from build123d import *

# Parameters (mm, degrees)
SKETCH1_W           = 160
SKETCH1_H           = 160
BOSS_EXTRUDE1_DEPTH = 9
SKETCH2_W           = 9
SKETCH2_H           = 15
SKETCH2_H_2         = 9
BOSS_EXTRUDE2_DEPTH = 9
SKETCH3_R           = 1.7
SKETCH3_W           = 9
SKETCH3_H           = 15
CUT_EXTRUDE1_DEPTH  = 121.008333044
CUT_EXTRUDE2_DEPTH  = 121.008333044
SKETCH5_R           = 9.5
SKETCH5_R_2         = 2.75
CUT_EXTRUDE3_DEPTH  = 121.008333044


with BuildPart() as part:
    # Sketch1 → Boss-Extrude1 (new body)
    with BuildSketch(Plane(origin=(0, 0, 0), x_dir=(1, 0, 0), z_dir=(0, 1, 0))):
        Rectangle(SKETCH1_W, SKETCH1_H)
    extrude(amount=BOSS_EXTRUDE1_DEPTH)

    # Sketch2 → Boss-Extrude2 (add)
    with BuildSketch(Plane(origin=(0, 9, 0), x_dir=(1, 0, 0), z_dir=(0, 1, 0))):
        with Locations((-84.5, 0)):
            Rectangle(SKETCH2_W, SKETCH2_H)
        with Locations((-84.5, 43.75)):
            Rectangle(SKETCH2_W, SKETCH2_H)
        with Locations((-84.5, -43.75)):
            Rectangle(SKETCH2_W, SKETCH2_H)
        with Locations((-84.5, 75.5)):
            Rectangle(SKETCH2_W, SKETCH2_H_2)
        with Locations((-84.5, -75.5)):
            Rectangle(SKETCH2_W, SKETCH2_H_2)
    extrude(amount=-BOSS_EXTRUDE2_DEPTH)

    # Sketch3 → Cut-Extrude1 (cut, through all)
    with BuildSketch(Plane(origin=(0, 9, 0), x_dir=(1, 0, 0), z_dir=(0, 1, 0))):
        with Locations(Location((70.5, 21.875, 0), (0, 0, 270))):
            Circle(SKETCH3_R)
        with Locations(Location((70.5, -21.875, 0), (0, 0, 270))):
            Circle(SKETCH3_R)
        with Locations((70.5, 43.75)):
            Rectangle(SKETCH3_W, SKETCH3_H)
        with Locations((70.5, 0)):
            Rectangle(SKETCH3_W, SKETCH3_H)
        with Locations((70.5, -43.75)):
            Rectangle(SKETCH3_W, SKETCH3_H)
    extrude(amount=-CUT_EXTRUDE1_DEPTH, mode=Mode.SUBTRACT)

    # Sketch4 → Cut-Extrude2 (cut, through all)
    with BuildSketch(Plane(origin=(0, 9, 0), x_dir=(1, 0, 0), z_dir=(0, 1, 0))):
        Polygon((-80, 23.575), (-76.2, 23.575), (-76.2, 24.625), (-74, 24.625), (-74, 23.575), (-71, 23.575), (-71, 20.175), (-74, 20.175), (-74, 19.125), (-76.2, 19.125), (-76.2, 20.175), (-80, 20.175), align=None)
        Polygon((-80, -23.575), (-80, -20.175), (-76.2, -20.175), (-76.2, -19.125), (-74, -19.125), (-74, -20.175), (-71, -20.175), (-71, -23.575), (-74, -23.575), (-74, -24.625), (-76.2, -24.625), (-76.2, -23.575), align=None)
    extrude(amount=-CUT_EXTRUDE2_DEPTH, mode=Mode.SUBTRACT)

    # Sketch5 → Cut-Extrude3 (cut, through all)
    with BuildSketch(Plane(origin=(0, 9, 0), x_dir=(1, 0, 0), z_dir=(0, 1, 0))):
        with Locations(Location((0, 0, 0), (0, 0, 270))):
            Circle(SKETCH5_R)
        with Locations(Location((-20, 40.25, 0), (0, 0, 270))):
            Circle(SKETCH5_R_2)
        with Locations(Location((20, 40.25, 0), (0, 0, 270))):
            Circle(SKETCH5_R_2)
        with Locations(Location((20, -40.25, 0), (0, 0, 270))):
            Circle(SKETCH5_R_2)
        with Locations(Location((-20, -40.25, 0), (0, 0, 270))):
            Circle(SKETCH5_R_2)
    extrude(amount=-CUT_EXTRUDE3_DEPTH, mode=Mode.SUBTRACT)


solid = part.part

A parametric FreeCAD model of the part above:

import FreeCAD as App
import Part
import Sketcher
from FreeCAD import Vector
Q = App.Units.Quantity

doc = App.newDocument("Part")
body = doc.addObject("PartDesign::Body", "Body")

sketch1 = body.newObject("Sketcher::SketchObject", "Sketch")
sketch1.AttachmentSupport = (doc.getObject("XZ_Plane"), [""])
sketch1.MapMode = "FlatFace"
sketch1.addGeometry([
    Part.LineSegment(Vector(-80, -80, 0), Vector(-80, 80, 0)),
    Part.LineSegment(Vector(-80, 80, 0), Vector(80, 80, 0)),
    Part.LineSegment(Vector(80, 80, 0), Vector(80, -80, 0)),
    Part.LineSegment(Vector(80, -80, 0), Vector(-80, -80, 0)),
], False)
sketch1.addConstraint([
    Sketcher.Constraint("Coincident", 0, 2, 1, 1),
    Sketcher.Constraint("Coincident", 1, 2, 2, 1),
    Sketcher.Constraint("Coincident", 2, 2, 3, 1),
    Sketcher.Constraint("Coincident", 3, 2, 0, 1),
    Sketcher.Constraint("Vertical", 0),
    Sketcher.Constraint("Horizontal", 1),
    Sketcher.Constraint("Vertical", 2),
    Sketcher.Constraint("Horizontal", 3),
    Sketcher.Constraint("Symmetric", 0, 2, 2, 2, -1, 1),
    Sketcher.Constraint("Equal", 3, 0),
    Sketcher.Constraint("DistanceX", 1, 1, 1, 2, Q("160 mm")),
])
pad1 = body.newObject("PartDesign::Pad", "Pad")
pad1.Profile = sketch1
pad1.Length = 9
pad1.Reversed = True

sketch2 = body.newObject("Sketcher::SketchObject", "Sketch001")
sketch2.AttachmentSupport = (doc.getObject("XZ_Plane"), [""])
sketch2.MapMode = "FlatFace"
sketch2.AttachmentOffset = App.Placement(Vector(0, 0, -9), App.Rotation())
sketch2.addGeometry([
    Part.LineSegment(Vector(-89, -8, 0), Vector(-89, 8, 0)),
    Part.LineSegment(Vector(-89, 8, 0), Vector(-80, 8, 0)),
    Part.LineSegment(Vector(-80, 8, 0), Vector(-80, -8, 0)),
    Part.LineSegment(Vector(-80, -8, 0), Vector(-89, -8, 0)),
    Part.LineSegment(Vector(-89, -51, 0), Vector(-89, -36, 0)),
    Part.LineSegment(Vector(-89, -36, 0), Vector(-80, -36, 0)),
    Part.LineSegment(Vector(-80, -36, 0), Vector(-80, -51, 0)),
    Part.LineSegment(Vector(-80, -51, 0), Vector(-89, -51, 0)),
    Part.LineSegment(Vector(-89, 36, 0), Vector(-89, 51, 0)),
    Part.LineSegment(Vector(-89, 51, 0), Vector(-80, 51, 0)),
    Part.LineSegment(Vector(-80, 51, 0), Vector(-80, 36, 0)),
    Part.LineSegment(Vector(-80, 36, 0), Vector(-89, 36, 0)),
    Part.LineSegment(Vector(-89, -80, 0), Vector(-89, -71, 0)),
    Part.LineSegment(Vector(-89, -71, 0), Vector(-80, -71, 0)),
    Part.LineSegment(Vector(-80, -71, 0), Vector(-80, -80, 0)),
    Part.LineSegment(Vector(-80, -80, 0), Vector(-89, -80, 0)),
    Part.LineSegment(Vector(-89, 71, 0), Vector(-89, 80, 0)),
    Part.LineSegment(Vector(-89, 80, 0), Vector(-80, 80, 0)),
    Part.LineSegment(Vector(-80, 80, 0), Vector(-80, 71, 0)),
    Part.LineSegment(Vector(-80, 71, 0), Vector(-89, 71, 0)),
], False)
sketch2.addConstraint([
    Sketcher.Constraint("Coincident", 0, 2, 1, 1),
    Sketcher.Constraint("Coincident", 1, 2, 2, 1),
    Sketcher.Constraint("Coincident", 2, 2, 3, 1),
    Sketcher.Constraint("Coincident", 3, 2, 0, 1),
    Sketcher.Constraint("Coincident", 4, 2, 5, 1),
    Sketcher.Constraint("Coincident", 5, 2, 6, 1),
    Sketcher.Constraint("Coincident", 6, 2, 7, 1),
    Sketcher.Constraint("Coincident", 7, 2, 4, 1),
    Sketcher.Constraint("Coincident", 8, 2, 9, 1),
    Sketcher.Constraint("Coincident", 9, 2, 10, 1),
    Sketcher.Constraint("Coincident", 10, 2, 11, 1),
    Sketcher.Constraint("Coincident", 11, 2, 8, 1),
    Sketcher.Constraint("Coincident", 12, 2, 13, 1),
    Sketcher.Constraint("Coincident", 13, 2, 14, 1),
    Sketcher.Constraint("Coincident", 14, 2, 15, 1),
    Sketcher.Constraint("Coincident", 15, 2, 12, 1),
    Sketcher.Constraint("Coincident", 16, 2, 17, 1),
    Sketcher.Constraint("Coincident", 17, 2, 18, 1),
    Sketcher.Constraint("Coincident", 18, 2, 19, 1),
    Sketcher.Constraint("Coincident", 19, 2, 16, 1),
    Sketcher.Constraint("Vertical", 0),
    Sketcher.Constraint("Horizontal", 1),
    Sketcher.Constraint("Vertical", 2),
    Sketcher.Constraint("Horizontal", 3),
    Sketcher.Constraint("Vertical", 4),
    Sketcher.Constraint("Horizontal", 5),
    Sketcher.Constraint("Vertical", 6),
    Sketcher.Constraint("Horizontal", 7),
    Sketcher.Constraint("Vertical", 8),
    Sketcher.Constraint("Horizontal", 9),
    Sketcher.Constraint("Vertical", 10),
    Sketcher.Constraint("Horizontal", 11),
    Sketcher.Constraint("Vertical", 12),
    Sketcher.Constraint("Horizontal", 13),
    Sketcher.Constraint("Vertical", 14),
    Sketcher.Constraint("Horizontal", 15),
    Sketcher.Constraint("Vertical", 16),
    Sketcher.Constraint("Horizontal", 17),
    Sketcher.Constraint("Vertical", 18),
    Sketcher.Constraint("Horizontal", 19),
    Sketcher.Constraint("Symmetric", 7, 2, 8, 2, -1),
    Sketcher.Constraint("Symmetric", 5, 2, 10, 2, -1),
    Sketcher.Constraint("Symmetric", 15, 2, 16, 2, -1),
    Sketcher.Constraint("Symmetric", 13, 2, 18, 2, -1),
    Sketcher.Constraint("Vertical", 3, 2, 4, 2),
    Sketcher.Constraint("Vertical", 2, 2, 5, 2),
    Sketcher.Constraint("Vertical", 11, 2, 12, 2),
    Sketcher.Constraint("Vertical", 10, 2, 13, 2),
    Sketcher.Constraint("Equal", 2, 4),
    Sketcher.Constraint("Equal", 19, 12),
    Sketcher.Constraint("DistanceX", 1, 1, 1, 2, Q("9 mm")),
    Sketcher.Constraint("DistanceY", 0, 1, 0, 2, Q("15 mm")),
    Sketcher.Constraint("DistanceX", 0, 2, -1, 1, Q("89 mm")),
    Sketcher.Constraint("DistanceY", 12, 2, -1, 1, Q("71 mm")),
    Sketcher.Constraint("DistanceY", -1, 1, 0, 2, Q("7.5 mm")),
    Sketcher.Constraint("DistanceY", 4, 2, 8, 2, Q("87.5 mm")),
])
pad2 = body.newObject("PartDesign::Pad", "Pad001")
pad2.Profile = sketch2
pad2.Length = 9

sketch3 = body.newObject("Sketcher::SketchObject", "Sketch002")
sketch3.AttachmentSupport = (doc.getObject("XZ_Plane"), [""])
sketch3.MapMode = "FlatFace"
sketch3.AttachmentOffset = App.Placement(Vector(0, 0, -9), App.Rotation())
sketch3.addGeometry([
    Part.Circle(Vector(70.5, -21.9, 0), Vector(0, 0, 1), 1.7),
    Part.Circle(Vector(70.5, 21.9, 0), Vector(0, 0, 1), 1.7),
    Part.LineSegment(Vector(66, -51.2, 0), Vector(66, -36.2, 0)),
    Part.LineSegment(Vector(66, -36.2, 0), Vector(75, -36.2, 0)),
    Part.LineSegment(Vector(75, -36.2, 0), Vector(75, -51.2, 0)),
    Part.LineSegment(Vector(75, -51.2, 0), Vector(66, -51.2, 0)),
    Part.LineSegment(Vector(66, -7.5, 0), Vector(66, 7.5, 0)),
    Part.LineSegment(Vector(66, 7.5, 0), Vector(75, 7.5, 0)),
    Part.LineSegment(Vector(75, 7.5, 0), Vector(75, -7.5, 0)),
    Part.LineSegment(Vector(75, -7.5, 0), Vector(66, -7.5, 0)),
    Part.LineSegment(Vector(66, 36.2, 0), Vector(66, 51.2, 0)),
    Part.LineSegment(Vector(66, 51.2, 0), Vector(75, 51.2, 0)),
    Part.LineSegment(Vector(75, 51.2, 0), Vector(75, 36.2, 0)),
    Part.LineSegment(Vector(75, 36.2, 0), Vector(66, 36.2, 0)),
], False)
sketch3.addConstraint([
    Sketcher.Constraint("Coincident", 2, 2, 3, 1),
    Sketcher.Constraint("Coincident", 3, 2, 4, 1),
    Sketcher.Constraint("Coincident", 4, 2, 5, 1),
    Sketcher.Constraint("Coincident", 5, 2, 2, 1),
    Sketcher.Constraint("Coincident", 6, 2, 7, 1),
    Sketcher.Constraint("Coincident", 7, 2, 8, 1),
    Sketcher.Constraint("Coincident", 8, 2, 9, 1),
    Sketcher.Constraint("Coincident", 9, 2, 6, 1),
    Sketcher.Constraint("Coincident", 10, 2, 11, 1),
    Sketcher.Constraint("Coincident", 11, 2, 12, 1),
    Sketcher.Constraint("Coincident", 12, 2, 13, 1),
    Sketcher.Constraint("Coincident", 13, 2, 10, 1),
    Sketcher.Constraint("Vertical", 2),
    Sketcher.Constraint("Horizontal", 3),
    Sketcher.Constraint("Vertical", 4),
    Sketcher.Constraint("Horizontal", 5),
    Sketcher.Constraint("Vertical", 6),
    Sketcher.Constraint("Horizontal", 7),
    Sketcher.Constraint("Vertical", 8),
    Sketcher.Constraint("Horizontal", 9),
    Sketcher.Constraint("Vertical", 10),
    Sketcher.Constraint("Horizontal", 11),
    Sketcher.Constraint("Vertical", 12),
    Sketcher.Constraint("Horizontal", 13),
    Sketcher.Constraint("Equal", 0, 1),
    Sketcher.Constraint("Symmetric", 0, 3, 1, 3, -1),
    Sketcher.Constraint("Symmetric", 5, 2, 10, 2, -1),
    Sketcher.Constraint("Symmetric", 3, 2, 12, 2, -1),
    Sketcher.Constraint("Vertical", 5, 2, 6, 2),
    Sketcher.Constraint("Vertical", 4, 2, 7, 2),
    Sketcher.Constraint("Equal", 4, 6),
    Sketcher.Constraint("Diameter", 0, Q("3.4 mm")),
    Sketcher.Constraint("DistanceX", 3, 1, 3, 2, Q("9 mm")),
    Sketcher.Constraint("DistanceY", 2, 1, 2, 2, Q("15 mm")),
    Sketcher.Constraint("DistanceX", -1, 1, 2, 2, Q("66 mm")),
    Sketcher.Constraint("DistanceX", -1, 1, 0, 3, Q("70.5 mm")),
    Sketcher.Constraint("DistanceY", -1, 1, 6, 2, Q("7.5 mm")),
    Sketcher.Constraint("DistanceY", 2, 2, -1, 1, Q("36.25 mm")),
    Sketcher.Constraint("DistanceY", 0, 3, 1, 3, Q("43.75 mm")),
])
pocket1 = body.newObject("PartDesign::Pocket", "Pocket")
pocket1.Profile = sketch3
pocket1.Type = "ThroughAll"
pocket1.Reversed = True

sketch4 = body.newObject("Sketcher::SketchObject", "Sketch003")
sketch4.AttachmentSupport = (doc.getObject("XZ_Plane"), [""])
sketch4.MapMode = "FlatFace"
sketch4.AttachmentOffset = App.Placement(Vector(0, 0, -9), App.Rotation())
sketch4.addGeometry([
    Part.LineSegment(Vector(-76.2, -23.6, 0), Vector(-80, -23.6, 0)),
    Part.LineSegment(Vector(-80, -23.6, 0), Vector(-80, -20.2, 0)),
    Part.LineSegment(Vector(-80, -20.2, 0), Vector(-76.2, -20.2, 0)),
    Part.LineSegment(Vector(-76.2, -20.2, 0), Vector(-76.2, -19.1, 0)),
    Part.LineSegment(Vector(-76.2, -19.1, 0), Vector(-74, -19.1, 0)),
    Part.LineSegment(Vector(-74, -19.1, 0), Vector(-74, -20.2, 0)),
    Part.LineSegment(Vector(-74, -20.2, 0), Vector(-71, -20.2, 0)),
    Part.LineSegment(Vector(-71, -20.2, 0), Vector(-71, -23.6, 0)),
    Part.LineSegment(Vector(-71, -23.6, 0), Vector(-74, -23.6, 0)),
    Part.LineSegment(Vector(-74, -23.6, 0), Vector(-74, -24.6, 0)),
    Part.LineSegment(Vector(-74, -24.6, 0), Vector(-76.2, -24.6, 0)),
    Part.LineSegment(Vector(-76.2, -24.6, 0), Vector(-76.2, -23.6, 0)),
    Part.LineSegment(Vector(-80, 20.2, 0), Vector(-80, 23.6, 0)),
    Part.LineSegment(Vector(-80, 23.6, 0), Vector(-76.2, 23.6, 0)),
    Part.LineSegment(Vector(-76.2, 23.6, 0), Vector(-76.2, 24.6, 0)),
    Part.LineSegment(Vector(-76.2, 24.6, 0), Vector(-74, 24.6, 0)),
    Part.LineSegment(Vector(-74, 24.6, 0), Vector(-74, 23.6, 0)),
    Part.LineSegment(Vector(-74, 23.6, 0), Vector(-71, 23.6, 0)),
    Part.LineSegment(Vector(-71, 23.6, 0), Vector(-71, 20.2, 0)),
    Part.LineSegment(Vector(-71, 20.2, 0), Vector(-74, 20.2, 0)),
    Part.LineSegment(Vector(-74, 20.2, 0), Vector(-74, 19.1, 0)),
    Part.LineSegment(Vector(-74, 19.1, 0), Vector(-76.2, 19.1, 0)),
    Part.LineSegment(Vector(-76.2, 19.1, 0), Vector(-76.2, 20.2, 0)),
    Part.LineSegment(Vector(-76.2, 20.2, 0), Vector(-80, 20.2, 0)),
], False)
sketch4.addConstraint([
    Sketcher.Constraint("Coincident", 0, 2, 1, 1),
    Sketcher.Constraint("Coincident", 1, 2, 2, 1),
    Sketcher.Constraint("Coincident", 2, 2, 3, 1),
    Sketcher.Constraint("Coincident", 3, 2, 4, 1),
    Sketcher.Constraint("Coincident", 4, 2, 5, 1),
    Sketcher.Constraint("Coincident", 5, 2, 6, 1),
    Sketcher.Constraint("Coincident", 6, 2, 7, 1),
    Sketcher.Constraint("Coincident", 7, 2, 8, 1),
    Sketcher.Constraint("Coincident", 8, 2, 9, 1),
    Sketcher.Constraint("Coincident", 9, 2, 10, 1),
    Sketcher.Constraint("Coincident", 10, 2, 11, 1),
    Sketcher.Constraint("Coincident", 11, 2, 0, 1),
    Sketcher.Constraint("Coincident", 12, 2, 13, 1),
    Sketcher.Constraint("Coincident", 13, 2, 14, 1),
    Sketcher.Constraint("Coincident", 14, 2, 15, 1),
    Sketcher.Constraint("Coincident", 15, 2, 16, 1),
    Sketcher.Constraint("Coincident", 16, 2, 17, 1),
    Sketcher.Constraint("Coincident", 17, 2, 18, 1),
    Sketcher.Constraint("Coincident", 18, 2, 19, 1),
    Sketcher.Constraint("Coincident", 19, 2, 20, 1),
    Sketcher.Constraint("Coincident", 20, 2, 21, 1),
    Sketcher.Constraint("Coincident", 21, 2, 22, 1),
    Sketcher.Constraint("Coincident", 22, 2, 23, 1),
    Sketcher.Constraint("Coincident", 23, 2, 12, 1),
    Sketcher.Constraint("Horizontal", 0),
    Sketcher.Constraint("Vertical", 1),
    Sketcher.Constraint("Horizontal", 2),
    Sketcher.Constraint("Vertical", 3),
    Sketcher.Constraint("Horizontal", 4),
    Sketcher.Constraint("Vertical", 5),
    Sketcher.Constraint("Horizontal", 6),
    Sketcher.Constraint("Vertical", 7),
    Sketcher.Constraint("Horizontal", 8),
    Sketcher.Constraint("Vertical", 9),
    Sketcher.Constraint("Horizontal", 10),
    Sketcher.Constraint("Vertical", 11),
    Sketcher.Constraint("Vertical", 12),
    Sketcher.Constraint("Horizontal", 13),
    Sketcher.Constraint("Vertical", 14),
    Sketcher.Constraint("Horizontal", 15),
    Sketcher.Constraint("Vertical", 16),
    Sketcher.Constraint("Horizontal", 17),
    Sketcher.Constraint("Vertical", 18),
    Sketcher.Constraint("Horizontal", 19),
    Sketcher.Constraint("Vertical", 20),
    Sketcher.Constraint("Horizontal", 21),
    Sketcher.Constraint("Vertical", 22),
    Sketcher.Constraint("Horizontal", 23),
    Sketcher.Constraint("Symmetric", 0, 2, 12, 2, -1),
    Sketcher.Constraint("Symmetric", 10, 2, 14, 2, -1),
    Sketcher.Constraint("Symmetric", 8, 2, 16, 2, -1),
    Sketcher.Constraint("Symmetric", 6, 2, 18, 2, -1),
    Sketcher.Constraint("Symmetric", 4, 2, 20, 2, -1),
    Sketcher.Constraint("Symmetric", 2, 2, 22, 2, -1),
    Sketcher.Constraint("Horizontal", 2, 2, 5, 2),
    Sketcher.Constraint("Horizontal", 0, 2, 7, 2),
    Sketcher.Constraint("Vertical", 5, 2, 8, 2),
    Sketcher.Constraint("Vertical", 3, 2, 10, 2),
    Sketcher.Constraint("Equal", 5, 9),
    Sketcher.Constraint("DistanceX", 6, 1, 6, 2, Q("3 mm")),
    Sketcher.Constraint("DistanceX", 0, 2, 0, 1, Q("3.8 mm")),
    Sketcher.Constraint("DistanceX", 4, 1, 4, 2, Q("2.2 mm")),
    Sketcher.Constraint("DistanceY", 1, 1, 1, 2, Q("3.4 mm")),
    Sketcher.Constraint("DistanceX", 0, 2, -1, 1, Q("80 mm")),
    Sketcher.Constraint("DistanceY", 3, 1, 3, 2, Q("1.05 mm")),
    Sketcher.Constraint("DistanceY", 3, 2, 12, 2, Q("42.7 mm")),
])
pocket2 = body.newObject("PartDesign::Pocket", "Pocket001")
pocket2.Profile = sketch4
pocket2.Type = "ThroughAll"
pocket2.Reversed = True

sketch5 = body.newObject("Sketcher::SketchObject", "Sketch004")
sketch5.AttachmentSupport = (doc.getObject("XZ_Plane"), [""])
sketch5.MapMode = "FlatFace"
sketch5.AttachmentOffset = App.Placement(Vector(0, 0, -9), App.Rotation())
sketch5.addGeometry([
    Part.Circle(Vector(0, 0, 0), Vector(0, 0, 1), 9.5),
    Part.Circle(Vector(-20, -40.2, 0), Vector(0, 0, 1), 2.8),
    Part.Circle(Vector(20, -40.2, 0), Vector(0, 0, 1), 2.8),
    Part.Circle(Vector(20, 40.2, 0), Vector(0, 0, 1), 2.8),
    Part.Circle(Vector(-20, 40.2, 0), Vector(0, 0, 1), 2.8),
], False)
sketch5.addConstraint([
    Sketcher.Constraint("Coincident", 0, 3, -1, 1),
    Sketcher.Constraint("Equal", 1, 2),
    Sketcher.Constraint("Equal", 2, 3),
    Sketcher.Constraint("Equal", 3, 4),
    Sketcher.Constraint("Symmetric", 1, 3, 3, 3, -1, 1),
    Sketcher.Constraint("Symmetric", 2, 3, 4, 3, -1, 1),
    Sketcher.Constraint("Symmetric", 1, 3, 2, 3, -2),
    Sketcher.Constraint("Diameter", 0, Q("19 mm")),
    Sketcher.Constraint("Diameter", 1, Q("5.5 mm")),
    Sketcher.Constraint("DistanceX", 1, 3, -1, 1, Q("20 mm")),
    Sketcher.Constraint("DistanceY", 2, 3, 3, 3, Q("80.5 mm")),
])
pocket3 = body.newObject("PartDesign::Pocket", "Pocket002")
pocket3.Profile = sketch5
pocket3.Type = "ThroughAll"
pocket3.Reversed = True

doc.recompute()
